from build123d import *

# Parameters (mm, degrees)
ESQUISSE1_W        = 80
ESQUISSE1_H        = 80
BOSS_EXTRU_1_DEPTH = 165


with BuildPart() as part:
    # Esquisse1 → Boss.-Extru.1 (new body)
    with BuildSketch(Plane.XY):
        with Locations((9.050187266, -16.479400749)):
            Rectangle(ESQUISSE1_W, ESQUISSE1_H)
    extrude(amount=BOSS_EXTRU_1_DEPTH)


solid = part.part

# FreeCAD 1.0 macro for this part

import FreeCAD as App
import Part
import Sketcher

doc = App.newDocument("Part")
body = doc.addObject("PartDesign::Body", "Body")

sketch1 = body.newObject("Sketcher::SketchObject", "Sketch")
sketch1.AttachmentSupport = (doc.getObject("XY_Plane"), [""])
sketch1.MapMode = "FlatFace"
sketch1.addGeometry(Part.LineSegment(App.Vector(-31, 24, 0), App.Vector(-31, -56, 0)), False)
sketch1.addGeometry(Part.LineSegment(App.Vector(-31, -56, 0), App.Vector(49, -56, 0)), False)
sketch1.addGeometry(Part.LineSegment(App.Vector(49, -56, 0), App.Vector(49, 24, 0)), False)
sketch1.addGeometry(Part.LineSegment(App.Vector(49, 24, 0), App.Vector(-31, 24, 0)), False)
sketch1.addConstraint(Sketcher.Constraint("Coincident", 0, 2, 1, 1))
sketch1.addConstraint(Sketcher.Constraint("Coincident", 1, 2, 2, 1))
sketch1.addConstraint(Sketcher.Constraint("Coincident", 2, 2, 3, 1))
sketch1.addConstraint(Sketcher.Constraint("Coincident", 3, 2, 0, 1))
sketch1.addConstraint(Sketcher.Constraint("Vertical", 0))
sketch1.addConstraint(Sketcher.Constraint("Horizontal", 1))
sketch1.addConstraint(Sketcher.Constraint("Vertical", 2))
sketch1.addConstraint(Sketcher.Constraint("Horizontal", 3))
sketch1.addConstraint(Sketcher.Constraint("Equal", 3, 0))
sketch1.addConstraint(Sketcher.Constraint("DistanceX", 1, 1, 1, 2, 80.0))
sketch1.addConstraint(Sketcher.Constraint("DistanceY", 0, 2, -1, 1, 56.479401))
sketch1.addConstraint(Sketcher.Constraint("DistanceX", 0, 2, -1, 1, 30.949813))
pad1 = body.newObject("PartDesign::Pad", "Pad")
pad1.Profile = sketch1
pad1.Length = 165

doc.recompute()
